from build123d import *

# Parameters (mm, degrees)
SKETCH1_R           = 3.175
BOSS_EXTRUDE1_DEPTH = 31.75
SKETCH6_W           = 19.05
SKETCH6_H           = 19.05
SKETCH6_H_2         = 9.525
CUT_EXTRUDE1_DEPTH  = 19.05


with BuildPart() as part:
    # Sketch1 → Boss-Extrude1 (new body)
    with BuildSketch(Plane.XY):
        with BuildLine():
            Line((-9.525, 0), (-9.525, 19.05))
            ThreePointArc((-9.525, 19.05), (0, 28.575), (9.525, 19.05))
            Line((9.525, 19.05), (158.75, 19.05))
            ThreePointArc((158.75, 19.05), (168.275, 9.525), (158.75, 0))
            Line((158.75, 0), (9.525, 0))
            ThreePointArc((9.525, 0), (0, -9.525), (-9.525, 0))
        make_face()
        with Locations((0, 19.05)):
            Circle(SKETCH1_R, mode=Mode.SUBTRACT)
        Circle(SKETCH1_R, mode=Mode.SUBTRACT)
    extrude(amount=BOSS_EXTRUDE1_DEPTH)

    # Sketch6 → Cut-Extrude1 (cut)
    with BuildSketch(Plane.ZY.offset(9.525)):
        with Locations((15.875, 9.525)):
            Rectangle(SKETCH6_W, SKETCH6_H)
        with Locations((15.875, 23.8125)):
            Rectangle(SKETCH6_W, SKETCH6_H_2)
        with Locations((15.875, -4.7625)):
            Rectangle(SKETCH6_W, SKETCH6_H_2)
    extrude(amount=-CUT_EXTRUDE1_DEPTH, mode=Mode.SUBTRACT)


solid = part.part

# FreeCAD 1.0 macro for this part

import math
import FreeCAD as App
import Part
import Sketcher
from FreeCAD import Vector
Q = App.Units.Quantity


def add_polygon(sketch, points):
    """Adds a closed chain of lines whose ends are joined by coincident constraints."""
    first, n = sketch.GeometryCount, len(points)
    for a, b in zip(points, points[1:] + points[:1]):
        sketch.addGeometry(Part.LineSegment(App.Vector(*a, 0), App.Vector(*b, 0)), False)
    for i in range(n):
        sketch.addConstraint(Sketcher.Constraint("Coincident", first + i, 2, first + (i + 1) % n, 1))

doc = App.newDocument("Part")
params = doc.addObject("Spreadsheet::Sheet", "Params")
for row, (alias, value) in enumerate([
    ("sketch1_diameter", "0.25 in"),
    ("sketch1_radius", "0.375 in"),
    ("sketch1_width", "5.875 in"),
    ("pad1_length", "1.25 in"),
    ("sketch2_width", "1.5 in"),
    ("sketch2_height", "0.75 in"),
    ("pocket1_length", "0.75 in"),
], start=1):
    params.set(f"A{row}", alias)
    params.set(f"B{row}", "=" + value)
    params.setAlias(f"B{row}", alias)

body = doc.addObject("PartDesign::Body", "Body")

# Sketch on XY plane
sketch1 = body.newObject("Sketcher::SketchObject", "Sketch")
sketch1.AttachmentSupport = (doc.getObject("XY_Plane"), [""])
sketch1.MapMode = "FlatFace"
sketch1.addGeometry([
    Part.LineSegment(Vector(-9.5, 19.1, 0), Vector(-9.5, 0, 0)),  # 0
    Part.ArcOfCircle(Part.Circle(Vector(0, 0, 0), Vector(0, 0, 1), 9.5), math.radians(180), math.radians(360)),  # 1
    Part.LineSegment(Vector(9.5, 0, 0), Vector(158.8, 0, 0)),  # 2
    Part.ArcOfCircle(Part.Circle(Vector(158.8, 9.5, 0), Vector(0, 0, 1), 9.5), math.radians(-90), math.radians(90)),  # 3
    Part.LineSegment(Vector(158.8, 19.1, 0), Vector(9.5, 19.1, 0)),  # 4
    Part.ArcOfCircle(Part.Circle(Vector(0, 19.1, 0), Vector(0, 0, 1), 9.5), math.radians(0), math.radians(180)),  # 5
    Part.Circle(Vector(0, 0, 0), Vector(0, 0, 1), 3.2),  # 6
    Part.Circle(Vector(0, 19.1, 0), Vector(0, 0, 1), 3.2),  # 7
], False)
sketch1.addConstraint([
    Sketcher.Constraint("Tangent", 0, 2, 1, 1),
    Sketcher.Constraint("Coincident", 1, 2, 2, 1),
    Sketcher.Constraint("Tangent", 2, 2, 3, 1),
    Sketcher.Constraint("Tangent", 3, 2, 4, 1),
    Sketcher.Constraint("Coincident", 4, 2, 5, 1),
    Sketcher.Constraint("Tangent", 5, 2, 0, 1),
    Sketcher.Constraint("Vertical", 0),
    Sketcher.Constraint("Horizontal", 2),
    Sketcher.Constraint("Horizontal", 4),
    Sketcher.Constraint("Coincident", 1, 3, -1, 1),
    Sketcher.Constraint("Coincident", 6, 3, -1, 1),
    Sketcher.Constraint("Coincident", 7, 3, 5, 3),
    Sketcher.Constraint("Equal", 1, 3),
    Sketcher.Constraint("Equal", 3, 5),
    Sketcher.Constraint("Equal", 6, 7),
    Sketcher.Constraint("PointOnObject", 1, 2, -1),
    Sketcher.Constraint("Horizontal", 7, 3, 3, 2),
    Sketcher.Constraint("Diameter", 6, Q("0.25 in")),
    Sketcher.Constraint("Radius", 1, Q("0.375 in")),
    Sketcher.Constraint("DistanceX", 2, 1, 2, 2, Q("5.875 in")),
])
sketch1.setExpression("Constraints[17]", "Params.sketch1_diameter")
sketch1.setExpression("Constraints[18]", "Params.sketch1_radius")
sketch1.setExpression("Constraints[19]", "Params.sketch1_width")
pad1 = body.newObject("PartDesign::Pad", "Pad")
pad1.Profile = sketch1
pad1.setExpression("Length", "Params.pad1_length")

# Sketch on YZ plane
sketch2 = body.newObject("Sketcher::SketchObject", "Sketch001")
sketch2.AttachmentSupport = (doc.getObject("YZ_Plane"), [""])
sketch2.MapMode = "FlatFace"
sketch2.AttachmentOffset = App.Placement(Vector(0, 0, -0.375 * 25.4), App.Rotation())
add_polygon(sketch2, [(29, 25), (29, 6), (-10, 6), (-10, 25)])  # lines 0-3
sketch2.addConstraint([
    Sketcher.Constraint("Vertical", 0),
    Sketcher.Constraint("Horizontal", 1),
    Sketcher.Constraint("Vertical", 2),
    Sketcher.Constraint("Horizontal", 3),
    Sketcher.Constraint("DistanceX", 1, 2, 1, 1, Q("1.5 in")),
    Sketcher.Constraint("DistanceY", -1, 1, 2, 2, Q("1 in")),
    Sketcher.Constraint("DistanceY", 0, 2, 0, 1, Q("0.75 in")),
    Sketcher.Constraint("DistanceX", -1, 1, 0, 2, Q("1.125 in")),
])
sketch2.setExpression("Constraints[8]", "Params.sketch2_width")
sketch2.setExpression("Constraints[10]", "Params.sketch2_height")
pocket1 = body.newObject("PartDesign::Pocket", "Pocket")
pocket1.Profile = sketch2
pocket1.setExpression("Length", "Params.pocket1_length")
pocket1.Reversed = True

doc.recompute()
